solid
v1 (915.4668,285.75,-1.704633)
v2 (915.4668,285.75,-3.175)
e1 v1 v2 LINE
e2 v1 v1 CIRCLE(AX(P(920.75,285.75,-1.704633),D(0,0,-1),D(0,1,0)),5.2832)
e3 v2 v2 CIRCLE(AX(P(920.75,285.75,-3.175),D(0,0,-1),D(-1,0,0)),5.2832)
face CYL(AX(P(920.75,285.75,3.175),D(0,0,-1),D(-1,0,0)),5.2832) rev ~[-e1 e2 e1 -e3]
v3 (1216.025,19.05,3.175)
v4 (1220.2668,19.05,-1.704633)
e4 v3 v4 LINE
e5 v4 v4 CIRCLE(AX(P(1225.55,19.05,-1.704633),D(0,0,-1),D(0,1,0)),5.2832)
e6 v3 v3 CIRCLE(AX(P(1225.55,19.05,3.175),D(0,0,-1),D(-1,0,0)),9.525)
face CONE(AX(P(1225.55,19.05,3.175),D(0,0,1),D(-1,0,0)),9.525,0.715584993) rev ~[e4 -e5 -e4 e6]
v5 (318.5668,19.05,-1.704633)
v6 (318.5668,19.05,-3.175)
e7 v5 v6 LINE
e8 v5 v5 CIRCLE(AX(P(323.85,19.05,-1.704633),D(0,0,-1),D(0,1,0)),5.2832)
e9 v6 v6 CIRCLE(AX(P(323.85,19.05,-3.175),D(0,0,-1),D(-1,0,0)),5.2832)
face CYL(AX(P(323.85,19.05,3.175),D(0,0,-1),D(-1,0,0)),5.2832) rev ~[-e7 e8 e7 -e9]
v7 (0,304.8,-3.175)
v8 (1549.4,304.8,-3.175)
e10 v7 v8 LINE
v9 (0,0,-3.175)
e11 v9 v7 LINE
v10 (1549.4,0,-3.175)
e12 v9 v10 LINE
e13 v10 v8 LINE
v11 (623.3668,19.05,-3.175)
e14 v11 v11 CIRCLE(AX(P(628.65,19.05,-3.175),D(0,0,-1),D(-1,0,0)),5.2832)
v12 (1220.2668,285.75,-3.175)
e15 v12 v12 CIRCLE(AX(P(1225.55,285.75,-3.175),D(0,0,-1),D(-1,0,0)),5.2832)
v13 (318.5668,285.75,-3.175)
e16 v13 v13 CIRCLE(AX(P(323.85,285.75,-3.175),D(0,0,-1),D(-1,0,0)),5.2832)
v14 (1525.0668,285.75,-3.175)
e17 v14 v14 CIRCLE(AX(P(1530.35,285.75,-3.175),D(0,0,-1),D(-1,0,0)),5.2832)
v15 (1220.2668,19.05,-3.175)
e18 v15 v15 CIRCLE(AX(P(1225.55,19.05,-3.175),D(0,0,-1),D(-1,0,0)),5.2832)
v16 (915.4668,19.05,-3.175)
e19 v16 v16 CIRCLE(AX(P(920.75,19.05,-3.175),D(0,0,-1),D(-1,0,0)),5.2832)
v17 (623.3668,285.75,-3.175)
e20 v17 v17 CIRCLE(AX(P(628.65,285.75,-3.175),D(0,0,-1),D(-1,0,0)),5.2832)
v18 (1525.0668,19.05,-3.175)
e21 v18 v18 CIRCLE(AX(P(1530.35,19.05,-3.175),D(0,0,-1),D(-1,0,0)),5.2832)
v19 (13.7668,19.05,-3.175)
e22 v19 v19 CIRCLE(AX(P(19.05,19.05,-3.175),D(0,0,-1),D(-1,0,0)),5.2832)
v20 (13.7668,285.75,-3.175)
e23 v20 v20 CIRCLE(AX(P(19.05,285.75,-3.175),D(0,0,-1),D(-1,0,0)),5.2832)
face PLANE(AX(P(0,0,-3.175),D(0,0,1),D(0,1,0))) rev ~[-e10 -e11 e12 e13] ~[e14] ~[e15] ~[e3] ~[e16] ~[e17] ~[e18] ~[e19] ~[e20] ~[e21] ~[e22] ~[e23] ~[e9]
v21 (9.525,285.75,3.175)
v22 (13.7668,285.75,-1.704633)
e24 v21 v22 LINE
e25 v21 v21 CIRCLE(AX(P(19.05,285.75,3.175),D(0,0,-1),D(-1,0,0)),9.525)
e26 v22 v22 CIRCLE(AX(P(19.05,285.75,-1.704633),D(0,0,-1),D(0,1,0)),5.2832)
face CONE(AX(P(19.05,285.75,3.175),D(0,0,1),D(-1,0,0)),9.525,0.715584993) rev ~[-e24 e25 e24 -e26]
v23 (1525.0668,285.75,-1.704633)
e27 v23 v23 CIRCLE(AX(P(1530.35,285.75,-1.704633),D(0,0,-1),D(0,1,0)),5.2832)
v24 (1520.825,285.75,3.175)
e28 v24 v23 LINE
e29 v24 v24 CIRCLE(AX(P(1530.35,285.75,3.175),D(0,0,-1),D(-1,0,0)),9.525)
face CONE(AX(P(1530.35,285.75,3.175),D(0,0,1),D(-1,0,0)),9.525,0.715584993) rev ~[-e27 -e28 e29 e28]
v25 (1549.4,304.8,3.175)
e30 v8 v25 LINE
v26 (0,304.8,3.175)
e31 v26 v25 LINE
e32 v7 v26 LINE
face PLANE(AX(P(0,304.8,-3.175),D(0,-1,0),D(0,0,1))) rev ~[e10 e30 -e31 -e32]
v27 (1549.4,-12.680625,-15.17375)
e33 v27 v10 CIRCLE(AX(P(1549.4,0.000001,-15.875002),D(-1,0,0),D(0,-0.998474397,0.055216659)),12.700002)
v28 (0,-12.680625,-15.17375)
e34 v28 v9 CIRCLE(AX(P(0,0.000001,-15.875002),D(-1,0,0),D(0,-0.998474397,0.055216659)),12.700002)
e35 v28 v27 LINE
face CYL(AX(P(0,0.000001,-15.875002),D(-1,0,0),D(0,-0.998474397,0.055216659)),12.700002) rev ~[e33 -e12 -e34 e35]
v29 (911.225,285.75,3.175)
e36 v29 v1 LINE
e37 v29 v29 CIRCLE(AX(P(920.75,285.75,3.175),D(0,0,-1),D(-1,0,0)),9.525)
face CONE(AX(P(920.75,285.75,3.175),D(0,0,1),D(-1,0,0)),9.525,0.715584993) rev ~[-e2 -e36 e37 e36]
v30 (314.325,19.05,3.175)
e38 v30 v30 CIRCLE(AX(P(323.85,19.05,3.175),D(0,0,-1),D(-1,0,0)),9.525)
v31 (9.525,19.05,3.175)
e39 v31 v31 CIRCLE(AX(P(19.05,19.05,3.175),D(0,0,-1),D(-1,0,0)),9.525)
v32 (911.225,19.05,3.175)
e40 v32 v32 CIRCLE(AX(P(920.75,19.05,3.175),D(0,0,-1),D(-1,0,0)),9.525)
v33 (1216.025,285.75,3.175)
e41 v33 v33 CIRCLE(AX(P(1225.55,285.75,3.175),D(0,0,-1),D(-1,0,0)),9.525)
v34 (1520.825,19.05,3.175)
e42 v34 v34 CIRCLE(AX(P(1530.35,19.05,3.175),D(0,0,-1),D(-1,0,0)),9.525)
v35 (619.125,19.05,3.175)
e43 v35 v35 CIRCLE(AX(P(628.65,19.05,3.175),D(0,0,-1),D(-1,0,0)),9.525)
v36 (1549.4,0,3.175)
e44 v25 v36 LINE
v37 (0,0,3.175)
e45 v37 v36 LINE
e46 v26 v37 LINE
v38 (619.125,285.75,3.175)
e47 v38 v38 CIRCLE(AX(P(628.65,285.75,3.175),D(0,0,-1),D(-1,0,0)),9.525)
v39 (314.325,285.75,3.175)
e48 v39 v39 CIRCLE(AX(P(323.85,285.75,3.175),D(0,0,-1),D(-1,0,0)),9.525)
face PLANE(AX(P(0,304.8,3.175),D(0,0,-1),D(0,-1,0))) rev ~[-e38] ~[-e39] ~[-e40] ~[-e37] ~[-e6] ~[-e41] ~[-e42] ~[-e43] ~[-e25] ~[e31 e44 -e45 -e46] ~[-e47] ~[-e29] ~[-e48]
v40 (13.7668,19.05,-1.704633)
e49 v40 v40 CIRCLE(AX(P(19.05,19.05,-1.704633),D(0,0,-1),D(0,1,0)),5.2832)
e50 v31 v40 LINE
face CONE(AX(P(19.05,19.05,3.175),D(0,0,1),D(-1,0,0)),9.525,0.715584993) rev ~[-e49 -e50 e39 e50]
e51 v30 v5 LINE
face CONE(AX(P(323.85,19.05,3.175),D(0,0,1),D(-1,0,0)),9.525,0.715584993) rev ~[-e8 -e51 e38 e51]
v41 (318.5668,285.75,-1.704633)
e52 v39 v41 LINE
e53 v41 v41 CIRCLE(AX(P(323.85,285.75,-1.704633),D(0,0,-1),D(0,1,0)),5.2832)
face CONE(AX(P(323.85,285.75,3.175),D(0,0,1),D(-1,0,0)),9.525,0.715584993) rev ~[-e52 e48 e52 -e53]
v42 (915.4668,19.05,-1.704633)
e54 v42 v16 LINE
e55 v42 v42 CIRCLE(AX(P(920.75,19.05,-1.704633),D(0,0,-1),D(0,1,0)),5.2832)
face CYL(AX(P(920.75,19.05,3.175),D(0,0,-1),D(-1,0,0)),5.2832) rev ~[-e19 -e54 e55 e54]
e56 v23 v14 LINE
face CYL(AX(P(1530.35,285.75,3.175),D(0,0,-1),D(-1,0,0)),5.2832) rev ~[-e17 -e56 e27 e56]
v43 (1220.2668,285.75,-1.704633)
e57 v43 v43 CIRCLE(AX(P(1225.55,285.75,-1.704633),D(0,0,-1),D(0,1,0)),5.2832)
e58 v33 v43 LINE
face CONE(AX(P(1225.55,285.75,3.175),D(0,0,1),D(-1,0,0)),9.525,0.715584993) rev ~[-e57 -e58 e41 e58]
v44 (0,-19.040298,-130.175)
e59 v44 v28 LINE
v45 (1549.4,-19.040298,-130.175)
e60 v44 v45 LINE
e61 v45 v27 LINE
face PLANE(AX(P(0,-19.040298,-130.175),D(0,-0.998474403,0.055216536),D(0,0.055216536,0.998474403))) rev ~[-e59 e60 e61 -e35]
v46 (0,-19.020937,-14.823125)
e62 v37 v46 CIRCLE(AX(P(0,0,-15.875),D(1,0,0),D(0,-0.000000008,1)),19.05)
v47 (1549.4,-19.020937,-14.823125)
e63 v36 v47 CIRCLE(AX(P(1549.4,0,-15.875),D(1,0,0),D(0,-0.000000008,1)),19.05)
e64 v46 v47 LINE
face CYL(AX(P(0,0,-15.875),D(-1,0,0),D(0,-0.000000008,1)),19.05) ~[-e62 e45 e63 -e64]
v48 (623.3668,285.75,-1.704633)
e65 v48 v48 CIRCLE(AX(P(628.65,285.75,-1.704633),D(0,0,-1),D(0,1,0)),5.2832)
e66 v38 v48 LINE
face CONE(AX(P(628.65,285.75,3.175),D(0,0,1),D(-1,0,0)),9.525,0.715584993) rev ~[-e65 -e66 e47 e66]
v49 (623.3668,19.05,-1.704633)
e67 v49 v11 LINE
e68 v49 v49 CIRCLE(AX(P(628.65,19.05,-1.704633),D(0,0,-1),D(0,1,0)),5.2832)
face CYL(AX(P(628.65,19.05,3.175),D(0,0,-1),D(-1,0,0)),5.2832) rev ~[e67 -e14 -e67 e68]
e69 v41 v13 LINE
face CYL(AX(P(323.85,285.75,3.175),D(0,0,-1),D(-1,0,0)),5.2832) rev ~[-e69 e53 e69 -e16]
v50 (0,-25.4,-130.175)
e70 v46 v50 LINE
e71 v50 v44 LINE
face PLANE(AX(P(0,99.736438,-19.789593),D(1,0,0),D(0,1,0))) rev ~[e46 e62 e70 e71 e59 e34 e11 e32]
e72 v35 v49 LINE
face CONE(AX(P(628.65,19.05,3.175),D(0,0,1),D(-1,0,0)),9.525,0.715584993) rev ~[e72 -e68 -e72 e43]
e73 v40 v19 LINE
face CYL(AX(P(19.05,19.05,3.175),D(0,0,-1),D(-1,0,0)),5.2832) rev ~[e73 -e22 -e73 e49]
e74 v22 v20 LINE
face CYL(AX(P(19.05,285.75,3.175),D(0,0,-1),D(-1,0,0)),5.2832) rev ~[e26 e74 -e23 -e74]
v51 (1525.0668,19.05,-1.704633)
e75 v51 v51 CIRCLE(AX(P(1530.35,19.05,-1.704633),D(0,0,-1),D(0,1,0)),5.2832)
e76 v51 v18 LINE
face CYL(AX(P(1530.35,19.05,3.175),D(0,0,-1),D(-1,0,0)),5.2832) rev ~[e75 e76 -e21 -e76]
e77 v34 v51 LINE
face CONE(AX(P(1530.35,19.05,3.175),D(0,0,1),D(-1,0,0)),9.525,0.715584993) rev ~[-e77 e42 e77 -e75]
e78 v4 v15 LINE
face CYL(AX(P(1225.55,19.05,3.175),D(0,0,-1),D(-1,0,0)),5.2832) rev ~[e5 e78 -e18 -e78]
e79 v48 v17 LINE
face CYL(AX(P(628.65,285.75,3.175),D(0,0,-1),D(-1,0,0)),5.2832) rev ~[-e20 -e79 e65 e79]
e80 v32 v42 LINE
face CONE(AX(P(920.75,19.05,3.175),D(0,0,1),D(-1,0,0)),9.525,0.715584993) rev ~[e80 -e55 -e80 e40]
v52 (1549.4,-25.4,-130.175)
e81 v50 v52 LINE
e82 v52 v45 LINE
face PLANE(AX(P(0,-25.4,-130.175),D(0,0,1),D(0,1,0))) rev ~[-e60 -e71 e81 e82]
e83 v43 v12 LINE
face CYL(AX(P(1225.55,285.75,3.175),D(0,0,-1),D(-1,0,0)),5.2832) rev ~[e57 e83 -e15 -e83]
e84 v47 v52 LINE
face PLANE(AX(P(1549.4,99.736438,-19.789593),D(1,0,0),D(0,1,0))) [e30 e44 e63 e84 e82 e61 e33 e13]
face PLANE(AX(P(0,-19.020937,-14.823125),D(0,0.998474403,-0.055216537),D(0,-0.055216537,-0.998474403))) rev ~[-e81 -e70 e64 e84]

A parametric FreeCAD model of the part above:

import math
import FreeCAD as App
import Part
import Sketcher

V = App.Vector
Q = App.Units.Quantity

doc = App.newDocument("Part")
body = doc.addObject("PartDesign::Body", "Body")

# Sketch on YZ plane
sketch1 = doc.addObject("Sketcher::SketchObject", "Sketch")
body.addObject(sketch1)
sketch1.AttachmentSupport = (doc.YZ_Plane, [""])
sketch1.MapMode = "FlatFace"
sketch1.addGeometry([
    Part.ArcOfCircle(Part.Circle(V(0, -16, 0), V(0, 0, 1), 19), math.radians(90), math.radians(177)),  # 0
    Part.LineSegment(V(-19, -15, 0), V(-25, -130, 0)),  # 1
    Part.LineSegment(V(-25, -130, 0), V(-19, -130, 0)),  # 2
    Part.LineSegment(V(-19, -130, 0), V(-13, -15, 0)),  # 3
    Part.ArcOfCircle(Part.Circle(V(0, -16, 0), V(0, 0, 1), 13), math.radians(90), math.radians(177)),  # 4
    Part.LineSegment(V(0, -3, 0), V(305, -3, 0)),  # 5
    Part.LineSegment(V(305, -3, 0), V(305, 3, 0)),  # 6
    Part.LineSegment(V(305, 3, 0), V(0, 3, 0)),  # 7
], False)
sketch1.addConstraint([
    Sketcher.Constraint("Tangent", 0, 2, 1, 1),
    Sketcher.Constraint("Coincident", 1, 2, 2, 1),
    Sketcher.Constraint("Coincident", 2, 2, 3, 1),
    Sketcher.Constraint("Tangent", 3, 2, 4, 2),
    Sketcher.Constraint("Tangent", 4, 1, 5, 1),
    Sketcher.Constraint("Coincident", 5, 2, 6, 1),
    Sketcher.Constraint("Coincident", 6, 2, 7, 1),
    Sketcher.Constraint("Tangent", 7, 2, 0, 1),
    Sketcher.Constraint("Horizontal", 2),
    Sketcher.Constraint("Horizontal", 5),
    Sketcher.Constraint("Vertical", 6),
    Sketcher.Constraint("Horizontal", 7),
    Sketcher.Constraint("Coincident", 4, 3, 0, 3),
    Sketcher.Constraint("Symmetric", 4, 1, 7, 2, -1, 1),
    Sketcher.Constraint("Parallel", 1, 3),
    Sketcher.Constraint("Radius", 4, Q("0.5000001 in")),
    Sketcher.Constraint("DistanceX", 5, 1, 5, 2, Q("12 in")),
    Sketcher.Constraint("Radius", 0, Q("0.75 in")),
    Sketcher.Constraint("DistanceX", 1, 2, -1, 1, Q("1 in")),
    Sketcher.Constraint("DistanceY", 2, 2, 4, 1, Q("5 in")),
])
pad1 = doc.addObject("PartDesign::Pad", "Pad")
body.addObject(pad1)
pad1.Profile = sketch1
pad1.Length = Q("61 in")

# Sketch on XY plane
sketch2 = doc.addObject("Sketcher::SketchObject", "Sketch001")
body.addObject(sketch2)
sketch2.AttachmentSupport = (doc.XY_Plane, [""])
sketch2.MapMode = "FlatFace"
sketch2.AttachmentOffset = App.Placement(V(0, 0, 0.125 * 25.4), App.Rotation())
sketch2.addGeometry([
    Part.Circle(V(1530, 286, 0), V(0, 0, 1), 5),  # 0
    Part.Circle(V(1530, 19, 0), V(0, 0, 1), 5),  # 1
    Part.Circle(V(1226, 19, 0), V(0, 0, 1), 5),  # 2
    Part.Circle(V(1226, 286, 0), V(0, 0, 1), 5),  # 3
    Part.Circle(V(921, 286, 0), V(0, 0, 1), 5),  # 4
    Part.Circle(V(921, 19, 0), V(0, 0, 1), 5),  # 5
    Part.Circle(V(629, 286, 0), V(0, 0, 1), 5),  # 6
    Part.Circle(V(629, 19, 0), V(0, 0, 1), 5),  # 7
    Part.Circle(V(324, 19, 0), V(0, 0, 1), 5),  # 8
    Part.Circle(V(324, 286, 0), V(0, 0, 1), 5),  # 9
    Part.Circle(V(19, 286, 0), V(0, 0, 1), 5),  # 10
    Part.Circle(V(19, 19, 0), V(0, 0, 1), 5),  # 11
], False)
sketch2.addConstraint([
    Sketcher.Constraint("Equal", 0, 1),
    Sketcher.Constraint("Equal", 1, 2),
    Sketcher.Constraint("Equal", 2, 3),
    Sketcher.Constraint("Equal", 3, 4),
    Sketcher.Constraint("Equal", 4, 5),
    Sketcher.Constraint("Equal", 5, 6),
    Sketcher.Constraint("Equal", 6, 7),
    Sketcher.Constraint("Equal", 7, 8),
    Sketcher.Constraint("Equal", 8, 9),
    Sketcher.Constraint("Equal", 9, 10),
    Sketcher.Constraint("Equal", 10, 11),
    Sketcher.Constraint("Horizontal", 1, 3, 2, 3),
    Sketcher.Constraint("Horizontal", 0, 3, 3, 3),
    Sketcher.Constraint("Horizontal", 3, 3, 4, 3),
    Sketcher.Constraint("Horizontal", 2, 3, 5, 3),
    Sketcher.Constraint("Horizontal", 4, 3, 6, 3),
    Sketcher.Constraint("Horizontal", 5, 3, 7, 3),
    Sketcher.Constraint("Horizontal", 7, 3, 8, 3),
    Sketcher.Constraint("Horizontal", 6, 3, 9, 3),
    Sketcher.Constraint("Horizontal", 9, 3, 10, 3),
    Sketcher.Constraint("Horizontal", 8, 3, 11, 3),
    Sketcher.Constraint("Vertical", 0, 3, 1, 3),
    Sketcher.Constraint("Vertical", 2, 3, 3, 3),
    Sketcher.Constraint("Vertical", 4, 3, 5, 3),
    Sketcher.Constraint("Vertical", 6, 3, 7, 3),
    Sketcher.Constraint("Vertical", 8, 3, 9, 3),
    Sketcher.Constraint("Vertical", 10, 3, 11, 3),
    Sketcher.Constraint("Diameter", 0, Q("0.416 in")),
    Sketcher.Constraint("DistanceX", 2, 3, 1, 3, Q("12 in")),
    Sketcher.Constraint("DistanceX", 4, 3, 3, 3, Q("12 in")),
    Sketcher.Constraint("DistanceX", 8, 3, 7, 3, Q("12 in")),
    Sketcher.Constraint("DistanceX", 10, 3, 9, 3, Q("12 in")),
    Sketcher.Constraint("DistanceY", 1, 3, 0, 3, Q("10.5 in")),
    Sketcher.Constraint("DistanceX", 6, 3, 4, 3, Q("11.5 in")),
    Sketcher.Constraint("DistanceX", -1, 1, 0, 3, Q("60.25 in")),
    Sketcher.Constraint("DistanceY", -1, 1, 0, 3, Q("11.25 in")),
])
doc.recompute()
hole = doc.addObject("PartDesign::Hole", "Hole")
body.addObject(hole)
hole.Profile = sketch2
hole.ThreadType = "None"
hole.Diameter = Q("0.416 in")
hole.DepthType = "Dimension"
hole.Depth = Q("16 in")
hole.DrillPoint = "Flat"
hole.HoleCutType = "Countersink"
hole.HoleCutDiameter = Q("0.75 in")
hole.HoleCutCountersinkAngle = 82

doc.recompute()
